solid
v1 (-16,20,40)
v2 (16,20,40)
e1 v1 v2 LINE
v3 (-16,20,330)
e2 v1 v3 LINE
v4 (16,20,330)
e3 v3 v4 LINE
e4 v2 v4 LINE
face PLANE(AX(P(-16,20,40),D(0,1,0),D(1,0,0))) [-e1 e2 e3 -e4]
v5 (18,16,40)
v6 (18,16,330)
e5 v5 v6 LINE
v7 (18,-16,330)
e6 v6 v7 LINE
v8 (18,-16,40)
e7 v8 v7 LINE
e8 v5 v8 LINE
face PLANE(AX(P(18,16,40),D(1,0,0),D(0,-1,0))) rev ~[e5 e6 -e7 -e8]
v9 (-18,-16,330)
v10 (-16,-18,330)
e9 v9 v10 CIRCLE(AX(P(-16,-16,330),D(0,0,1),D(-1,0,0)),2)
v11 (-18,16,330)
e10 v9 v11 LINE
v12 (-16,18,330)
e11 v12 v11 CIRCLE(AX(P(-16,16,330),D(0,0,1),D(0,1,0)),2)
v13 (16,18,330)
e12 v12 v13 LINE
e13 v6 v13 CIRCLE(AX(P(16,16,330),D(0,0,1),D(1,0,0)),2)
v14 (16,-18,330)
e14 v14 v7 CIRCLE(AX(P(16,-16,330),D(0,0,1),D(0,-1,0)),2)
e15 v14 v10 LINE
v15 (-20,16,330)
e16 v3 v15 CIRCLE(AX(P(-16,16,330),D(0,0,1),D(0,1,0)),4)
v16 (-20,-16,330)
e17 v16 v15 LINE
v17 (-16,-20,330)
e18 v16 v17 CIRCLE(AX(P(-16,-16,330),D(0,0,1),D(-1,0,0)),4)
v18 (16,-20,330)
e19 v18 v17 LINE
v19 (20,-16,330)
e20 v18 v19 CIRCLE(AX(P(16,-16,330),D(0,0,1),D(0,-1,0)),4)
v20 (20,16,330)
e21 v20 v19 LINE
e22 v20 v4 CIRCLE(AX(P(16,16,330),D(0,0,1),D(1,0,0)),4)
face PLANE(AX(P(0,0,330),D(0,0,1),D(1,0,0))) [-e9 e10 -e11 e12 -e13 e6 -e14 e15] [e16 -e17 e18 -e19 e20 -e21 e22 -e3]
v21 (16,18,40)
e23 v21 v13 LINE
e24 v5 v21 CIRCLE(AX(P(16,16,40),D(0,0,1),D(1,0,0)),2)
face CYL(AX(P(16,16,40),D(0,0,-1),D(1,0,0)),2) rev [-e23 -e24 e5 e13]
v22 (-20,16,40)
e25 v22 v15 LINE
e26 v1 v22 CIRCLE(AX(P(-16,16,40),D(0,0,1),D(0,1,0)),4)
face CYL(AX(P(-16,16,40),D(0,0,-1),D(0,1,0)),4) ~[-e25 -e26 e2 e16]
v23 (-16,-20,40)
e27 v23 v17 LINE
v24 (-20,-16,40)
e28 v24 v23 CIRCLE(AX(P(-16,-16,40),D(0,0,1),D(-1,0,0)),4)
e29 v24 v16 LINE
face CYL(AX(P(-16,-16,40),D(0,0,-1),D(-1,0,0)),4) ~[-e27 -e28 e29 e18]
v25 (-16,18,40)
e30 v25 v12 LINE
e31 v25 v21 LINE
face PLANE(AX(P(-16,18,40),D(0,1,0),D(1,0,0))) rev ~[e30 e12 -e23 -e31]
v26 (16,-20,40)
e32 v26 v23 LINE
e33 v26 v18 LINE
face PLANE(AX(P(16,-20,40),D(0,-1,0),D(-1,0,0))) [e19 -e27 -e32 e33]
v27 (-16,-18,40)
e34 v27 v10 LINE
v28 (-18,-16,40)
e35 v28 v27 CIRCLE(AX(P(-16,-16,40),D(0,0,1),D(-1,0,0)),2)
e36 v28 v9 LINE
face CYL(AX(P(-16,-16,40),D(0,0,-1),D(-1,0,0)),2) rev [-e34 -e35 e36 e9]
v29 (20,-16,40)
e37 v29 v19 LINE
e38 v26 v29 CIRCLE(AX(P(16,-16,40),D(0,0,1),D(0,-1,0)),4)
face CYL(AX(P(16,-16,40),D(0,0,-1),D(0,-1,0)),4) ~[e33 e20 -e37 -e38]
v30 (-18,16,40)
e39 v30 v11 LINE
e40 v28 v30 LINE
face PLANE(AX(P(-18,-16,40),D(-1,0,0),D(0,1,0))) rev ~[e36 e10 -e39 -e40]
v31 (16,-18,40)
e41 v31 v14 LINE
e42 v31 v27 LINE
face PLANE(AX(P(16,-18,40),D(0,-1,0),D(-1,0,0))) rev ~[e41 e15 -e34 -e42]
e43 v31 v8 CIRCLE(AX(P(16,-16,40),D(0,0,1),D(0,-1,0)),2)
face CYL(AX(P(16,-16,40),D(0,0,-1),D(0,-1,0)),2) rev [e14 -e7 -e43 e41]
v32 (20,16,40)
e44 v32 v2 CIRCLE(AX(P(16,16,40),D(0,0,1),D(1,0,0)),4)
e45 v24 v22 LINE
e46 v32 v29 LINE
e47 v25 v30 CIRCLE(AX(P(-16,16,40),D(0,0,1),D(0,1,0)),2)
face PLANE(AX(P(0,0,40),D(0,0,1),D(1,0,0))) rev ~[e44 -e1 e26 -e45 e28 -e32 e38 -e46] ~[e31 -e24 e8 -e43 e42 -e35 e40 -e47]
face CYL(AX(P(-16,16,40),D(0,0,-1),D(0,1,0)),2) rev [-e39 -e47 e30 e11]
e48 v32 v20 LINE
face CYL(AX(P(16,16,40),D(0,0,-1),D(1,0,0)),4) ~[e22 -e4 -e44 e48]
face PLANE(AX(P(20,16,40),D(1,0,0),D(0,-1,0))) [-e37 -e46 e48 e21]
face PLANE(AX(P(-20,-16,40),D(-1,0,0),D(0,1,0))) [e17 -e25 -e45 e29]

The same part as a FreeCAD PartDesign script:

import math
import FreeCAD as App
import Part
import Sketcher
Q = App.Units.Quantity

doc = App.newDocument("Part")
body = doc.addObject("PartDesign::Body", "Body")

# Sketch on XY plane
sketch1 = doc.addObject("Sketcher::SketchObject", "Sketch")
body.addObject(sketch1)
sketch1.AttachmentSupport = (doc.XY_Plane, [""])
sketch1.MapMode = "FlatFace"
sketch1.AttachmentOffset = App.Placement(App.Vector(0, 0, 40), App.Rotation())
sketch1.addGeometry(Part.LineSegment(App.Vector(-20, 16, 0), App.Vector(-20, -16, 0)), False)
sketch1.addGeometry(Part.ArcOfCircle(Part.Circle(App.Vector(-16, -16, 0), App.Vector(0, 0, 1), 4), math.radians(180), math.radians(270)), False)
sketch1.addGeometry(Part.LineSegment(App.Vector(-16, -20, 0), App.Vector(16, -20, 0)), False)
sketch1.addGeometry(Part.ArcOfCircle(Part.Circle(App.Vector(16, -16, 0), App.Vector(0, 0, 1), 4), math.radians(-90), math.radians(0)), False)
sketch1.addGeometry(Part.LineSegment(App.Vector(20, -16, 0), App.Vector(20, 16, 0)), False)
sketch1.addGeometry(Part.ArcOfCircle(Part.Circle(App.Vector(16, 16, 0), App.Vector(0, 0, 1), 4), math.radians(0), math.radians(90)), False)
sketch1.addGeometry(Part.LineSegment(App.Vector(16, 20, 0), App.Vector(-16, 20, 0)), False)
sketch1.addGeometry(Part.ArcOfCircle(Part.Circle(App.Vector(-16, 16, 0), App.Vector(0, 0, 1), 4), math.radians(90), math.radians(180)), False)
sketch1.addGeometry(Part.ArcOfCircle(Part.Circle(App.Vector(-16, 16, 0), App.Vector(0, 0, 1), 2), math.radians(90), math.radians(180)), False)
sketch1.addGeometry(Part.LineSegment(App.Vector(-16, 18, 0), App.Vector(16, 18, 0)), False)
sketch1.addGeometry(Part.ArcOfCircle(Part.Circle(App.Vector(16, 16, 0), App.Vector(0, 0, 1), 2), math.radians(0), math.radians(90)), False)
sketch1.addGeometry(Part.LineSegment(App.Vector(18, 16, 0), App.Vector(18, -16, 0)), False)
sketch1.addGeometry(Part.ArcOfCircle(Part.Circle(App.Vector(16, -16, 0), App.Vector(0, 0, 1), 2), math.radians(-90), math.radians(0)), False)
sketch1.addGeometry(Part.LineSegment(App.Vector(16, -18, 0), App.Vector(-16, -18, 0)), False)
sketch1.addGeometry(Part.ArcOfCircle(Part.Circle(App.Vector(-16, -16, 0), App.Vector(0, 0, 1), 2), math.radians(180), math.radians(270)), False)
sketch1.addGeometry(Part.LineSegment(App.Vector(-18, -16, 0), App.Vector(-18, 16, 0)), False)
sketch1.addConstraint(Sketcher.Constraint("Tangent", 0, 2, 1, 1))
sketch1.addConstraint(Sketcher.Constraint("Tangent", 1, 2, 2, 1))
sketch1.addConstraint(Sketcher.Constraint("Tangent", 2, 2, 3, 1))
sketch1.addConstraint(Sketcher.Constraint("Tangent", 3, 2, 4, 1))
sketch1.addConstraint(Sketcher.Constraint("Tangent", 4, 2, 5, 1))
sketch1.addConstraint(Sketcher.Constraint("Tangent", 5, 2, 6, 1))
sketch1.addConstraint(Sketcher.Constraint("Tangent", 6, 2, 7, 1))
sketch1.addConstraint(Sketcher.Constraint("Tangent", 7, 2, 0, 1))
sketch1.addConstraint(Sketcher.Constraint("Tangent", 8, 1, 9, 1))
sketch1.addConstraint(Sketcher.Constraint("Tangent", 9, 2, 10, 2))
sketch1.addConstraint(Sketcher.Constraint("Tangent", 10, 1, 11, 1))
sketch1.addConstraint(Sketcher.Constraint("Tangent", 11, 2, 12, 2))
sketch1.addConstraint(Sketcher.Constraint("Tangent", 12, 1, 13, 1))
sketch1.addConstraint(Sketcher.Constraint("Tangent", 13, 2, 14, 2))
sketch1.addConstraint(Sketcher.Constraint("Tangent", 14, 1, 15, 1))
sketch1.addConstraint(Sketcher.Constraint("Tangent", 15, 2, 8, 2))
sketch1.addConstraint(Sketcher.Constraint("Vertical", 0))
sketch1.addConstraint(Sketcher.Constraint("Horizontal", 2))
sketch1.addConstraint(Sketcher.Constraint("Vertical", 4))
sketch1.addConstraint(Sketcher.Constraint("Horizontal", 6))
sketch1.addConstraint(Sketcher.Constraint("Horizontal", 9))
sketch1.addConstraint(Sketcher.Constraint("Vertical", 11))
sketch1.addConstraint(Sketcher.Constraint("Horizontal", 13))
sketch1.addConstraint(Sketcher.Constraint("Vertical", 15))
sketch1.addConstraint(Sketcher.Constraint("Coincident", 8, 3, 7, 3))
sketch1.addConstraint(Sketcher.Constraint("Coincident", 10, 3, 5, 3))
sketch1.addConstraint(Sketcher.Constraint("Coincident", 12, 3, 3, 3))
sketch1.addConstraint(Sketcher.Constraint("Equal", 1, 3))
sketch1.addConstraint(Sketcher.Constraint("Equal", 3, 5))
sketch1.addConstraint(Sketcher.Constraint("Equal", 5, 7))
sketch1.addConstraint(Sketcher.Constraint("Equal", 12, 14))
sketch1.addConstraint(Sketcher.Constraint("Symmetric", 1, 3, 5, 3, -1, 1))
sketch1.addConstraint(Sketcher.Constraint("Equal", 13, 0))
sketch1.addConstraint(Sketcher.Constraint("Radius", 1, Q("4 mm")))
sketch1.addConstraint(Sketcher.Constraint("Radius", 8, Q("2 mm")))
sketch1.addConstraint(Sketcher.Constraint("DistanceX", 0, 2, -1, 1, Q("20 mm")))
pad1 = doc.addObject("PartDesign::Pad", "Pad")
body.addObject(pad1)
pad1.Profile = sketch1
pad1.Length = 290

doc.recompute()
